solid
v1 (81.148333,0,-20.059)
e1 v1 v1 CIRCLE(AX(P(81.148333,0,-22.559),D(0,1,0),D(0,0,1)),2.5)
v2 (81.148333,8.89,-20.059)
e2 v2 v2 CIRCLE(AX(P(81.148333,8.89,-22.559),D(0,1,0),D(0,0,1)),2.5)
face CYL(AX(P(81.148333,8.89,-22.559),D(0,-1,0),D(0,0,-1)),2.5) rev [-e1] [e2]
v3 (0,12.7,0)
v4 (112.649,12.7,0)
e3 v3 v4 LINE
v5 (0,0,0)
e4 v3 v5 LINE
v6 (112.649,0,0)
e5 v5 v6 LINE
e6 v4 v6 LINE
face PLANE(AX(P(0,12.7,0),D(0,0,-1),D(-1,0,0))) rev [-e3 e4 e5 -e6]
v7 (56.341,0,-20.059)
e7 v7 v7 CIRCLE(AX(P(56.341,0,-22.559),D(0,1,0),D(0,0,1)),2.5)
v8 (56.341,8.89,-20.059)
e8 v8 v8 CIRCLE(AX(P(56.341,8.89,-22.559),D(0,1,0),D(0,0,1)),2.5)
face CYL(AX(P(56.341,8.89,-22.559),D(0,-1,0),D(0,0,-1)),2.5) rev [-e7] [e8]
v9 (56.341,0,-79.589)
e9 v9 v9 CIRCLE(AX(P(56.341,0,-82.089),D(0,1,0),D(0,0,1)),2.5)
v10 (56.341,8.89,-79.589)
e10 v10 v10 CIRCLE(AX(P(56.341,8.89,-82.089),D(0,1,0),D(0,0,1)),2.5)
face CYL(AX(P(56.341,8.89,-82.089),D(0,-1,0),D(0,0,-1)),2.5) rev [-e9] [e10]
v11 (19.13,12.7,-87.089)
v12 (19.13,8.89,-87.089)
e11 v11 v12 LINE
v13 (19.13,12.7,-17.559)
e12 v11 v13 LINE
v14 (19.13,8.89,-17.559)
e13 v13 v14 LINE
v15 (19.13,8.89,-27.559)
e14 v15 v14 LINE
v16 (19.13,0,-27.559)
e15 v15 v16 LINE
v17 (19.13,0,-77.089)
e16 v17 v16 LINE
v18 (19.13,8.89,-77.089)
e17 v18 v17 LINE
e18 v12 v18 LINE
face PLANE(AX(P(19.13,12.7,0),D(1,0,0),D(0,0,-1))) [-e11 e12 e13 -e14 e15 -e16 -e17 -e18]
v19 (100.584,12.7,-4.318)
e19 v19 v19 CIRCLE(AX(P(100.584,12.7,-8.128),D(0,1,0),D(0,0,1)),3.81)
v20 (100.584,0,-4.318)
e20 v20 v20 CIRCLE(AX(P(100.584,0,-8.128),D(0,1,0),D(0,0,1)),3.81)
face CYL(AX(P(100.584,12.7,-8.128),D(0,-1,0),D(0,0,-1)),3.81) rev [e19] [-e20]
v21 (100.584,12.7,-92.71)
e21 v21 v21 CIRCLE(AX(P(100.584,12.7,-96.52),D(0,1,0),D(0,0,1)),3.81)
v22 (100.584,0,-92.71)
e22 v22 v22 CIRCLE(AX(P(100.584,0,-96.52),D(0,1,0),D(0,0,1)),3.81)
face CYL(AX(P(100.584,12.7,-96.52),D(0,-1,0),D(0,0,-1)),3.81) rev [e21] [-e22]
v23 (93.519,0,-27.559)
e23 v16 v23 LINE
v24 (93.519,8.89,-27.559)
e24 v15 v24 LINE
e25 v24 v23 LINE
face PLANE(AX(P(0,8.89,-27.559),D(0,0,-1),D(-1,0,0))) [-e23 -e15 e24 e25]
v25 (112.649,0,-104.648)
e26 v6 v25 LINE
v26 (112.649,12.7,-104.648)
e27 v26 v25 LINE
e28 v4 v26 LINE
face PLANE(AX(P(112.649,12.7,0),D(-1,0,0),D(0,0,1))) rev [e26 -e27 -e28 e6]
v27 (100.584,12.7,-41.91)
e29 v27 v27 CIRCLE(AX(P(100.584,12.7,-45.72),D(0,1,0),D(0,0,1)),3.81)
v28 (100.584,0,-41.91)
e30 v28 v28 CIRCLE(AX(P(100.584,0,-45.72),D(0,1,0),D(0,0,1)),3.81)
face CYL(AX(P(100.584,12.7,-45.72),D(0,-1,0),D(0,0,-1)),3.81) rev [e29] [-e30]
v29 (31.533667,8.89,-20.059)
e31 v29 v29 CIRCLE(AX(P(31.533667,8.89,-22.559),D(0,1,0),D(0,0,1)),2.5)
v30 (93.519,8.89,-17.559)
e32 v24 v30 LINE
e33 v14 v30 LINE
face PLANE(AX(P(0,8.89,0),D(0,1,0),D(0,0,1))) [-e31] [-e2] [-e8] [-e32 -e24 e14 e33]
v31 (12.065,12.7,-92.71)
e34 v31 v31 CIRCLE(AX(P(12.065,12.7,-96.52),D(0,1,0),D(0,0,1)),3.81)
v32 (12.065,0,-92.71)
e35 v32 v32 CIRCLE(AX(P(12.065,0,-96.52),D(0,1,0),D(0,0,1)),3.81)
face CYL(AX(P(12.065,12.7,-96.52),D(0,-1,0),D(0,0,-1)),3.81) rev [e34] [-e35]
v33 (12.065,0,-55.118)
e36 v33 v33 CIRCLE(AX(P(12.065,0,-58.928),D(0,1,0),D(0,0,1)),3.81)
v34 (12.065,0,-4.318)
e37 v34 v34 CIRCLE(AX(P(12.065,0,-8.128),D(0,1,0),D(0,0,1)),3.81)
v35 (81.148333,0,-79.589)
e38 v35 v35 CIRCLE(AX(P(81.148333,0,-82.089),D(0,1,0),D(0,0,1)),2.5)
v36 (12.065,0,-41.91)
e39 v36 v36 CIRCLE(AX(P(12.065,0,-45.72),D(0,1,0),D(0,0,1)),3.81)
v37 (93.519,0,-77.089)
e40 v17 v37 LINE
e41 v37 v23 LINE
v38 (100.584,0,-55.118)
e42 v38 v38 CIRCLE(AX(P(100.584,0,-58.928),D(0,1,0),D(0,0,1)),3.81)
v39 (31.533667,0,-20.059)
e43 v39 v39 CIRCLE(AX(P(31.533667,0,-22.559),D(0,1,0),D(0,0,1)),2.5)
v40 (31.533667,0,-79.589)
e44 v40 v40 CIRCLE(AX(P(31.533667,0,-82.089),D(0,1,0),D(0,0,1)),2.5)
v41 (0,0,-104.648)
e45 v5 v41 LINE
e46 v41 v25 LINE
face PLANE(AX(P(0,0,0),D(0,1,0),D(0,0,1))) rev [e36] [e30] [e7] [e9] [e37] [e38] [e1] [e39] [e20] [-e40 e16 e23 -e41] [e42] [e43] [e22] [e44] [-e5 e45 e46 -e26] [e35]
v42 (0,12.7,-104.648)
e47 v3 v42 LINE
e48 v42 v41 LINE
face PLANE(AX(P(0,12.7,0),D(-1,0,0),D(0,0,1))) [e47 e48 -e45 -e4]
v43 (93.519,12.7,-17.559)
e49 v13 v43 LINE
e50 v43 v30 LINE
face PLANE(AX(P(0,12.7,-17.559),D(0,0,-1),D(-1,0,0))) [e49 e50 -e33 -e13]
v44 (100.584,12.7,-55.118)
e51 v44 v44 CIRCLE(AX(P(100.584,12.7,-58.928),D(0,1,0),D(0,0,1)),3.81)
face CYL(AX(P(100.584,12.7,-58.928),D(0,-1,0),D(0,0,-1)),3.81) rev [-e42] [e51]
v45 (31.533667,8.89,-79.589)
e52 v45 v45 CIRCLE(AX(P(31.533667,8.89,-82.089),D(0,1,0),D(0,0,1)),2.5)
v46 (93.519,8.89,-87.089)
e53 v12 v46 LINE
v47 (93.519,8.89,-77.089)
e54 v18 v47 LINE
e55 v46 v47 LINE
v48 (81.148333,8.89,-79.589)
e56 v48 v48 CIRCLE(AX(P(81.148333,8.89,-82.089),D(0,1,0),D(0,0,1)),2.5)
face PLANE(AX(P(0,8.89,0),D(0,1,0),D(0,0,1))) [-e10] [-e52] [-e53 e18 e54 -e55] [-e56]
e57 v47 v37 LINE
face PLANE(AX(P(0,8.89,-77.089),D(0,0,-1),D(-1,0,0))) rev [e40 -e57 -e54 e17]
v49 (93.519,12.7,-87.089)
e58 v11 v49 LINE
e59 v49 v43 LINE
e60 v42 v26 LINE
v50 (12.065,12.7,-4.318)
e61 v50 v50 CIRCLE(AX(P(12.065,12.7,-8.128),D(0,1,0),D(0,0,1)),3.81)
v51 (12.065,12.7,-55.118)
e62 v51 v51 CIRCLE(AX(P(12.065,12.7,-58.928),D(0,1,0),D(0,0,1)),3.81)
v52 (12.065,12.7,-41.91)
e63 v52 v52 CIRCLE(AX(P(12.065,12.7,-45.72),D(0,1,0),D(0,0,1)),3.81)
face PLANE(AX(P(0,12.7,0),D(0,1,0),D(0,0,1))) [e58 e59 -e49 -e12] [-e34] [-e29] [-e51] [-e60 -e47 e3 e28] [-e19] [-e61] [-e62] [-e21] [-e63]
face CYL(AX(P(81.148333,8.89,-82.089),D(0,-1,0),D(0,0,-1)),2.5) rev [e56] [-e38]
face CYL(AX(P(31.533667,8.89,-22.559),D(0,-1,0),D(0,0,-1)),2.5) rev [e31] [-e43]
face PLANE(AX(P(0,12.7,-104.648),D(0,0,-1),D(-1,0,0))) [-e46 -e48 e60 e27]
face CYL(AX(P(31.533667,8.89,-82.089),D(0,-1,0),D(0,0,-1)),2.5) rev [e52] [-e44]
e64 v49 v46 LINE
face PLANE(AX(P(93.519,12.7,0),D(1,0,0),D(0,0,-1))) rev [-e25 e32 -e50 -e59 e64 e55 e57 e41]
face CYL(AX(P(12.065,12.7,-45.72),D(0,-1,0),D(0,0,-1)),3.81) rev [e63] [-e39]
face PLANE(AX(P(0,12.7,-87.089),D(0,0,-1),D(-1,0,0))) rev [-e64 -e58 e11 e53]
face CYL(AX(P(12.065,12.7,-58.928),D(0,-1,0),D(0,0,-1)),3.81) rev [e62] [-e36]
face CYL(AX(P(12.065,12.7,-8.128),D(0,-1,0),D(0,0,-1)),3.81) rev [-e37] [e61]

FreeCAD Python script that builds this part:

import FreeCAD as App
import Part
import Sketcher

V = App.Vector
Q = App.Units.Quantity

doc = App.newDocument("Part")
body = doc.addObject("PartDesign::Body", "Body")

sketch1 = body.newObject("Sketcher::SketchObject", "Sketch")
sketch1.AttachmentSupport = (doc.getObject("XZ_Plane"), [""])
sketch1.MapMode = "FlatFace"
sketch1.addGeometry([
    Part.LineSegment(V(0, -104.648, 0), V(0, 0, 0)),
    Part.LineSegment(V(0, 0, 0), V(112.649, 0, 0)),
    Part.LineSegment(V(112.649, 0, 0), V(112.649, -104.648, 0)),
    Part.LineSegment(V(112.649, -104.648, 0), V(0, -104.648, 0)),
    Part.Circle(V(12.065, -8.128, 0), V(0, 0, 1), 3.81),
    Part.Circle(V(12.065, -45.72, 0), V(0, 0, 1), 3.81),
    Part.Circle(V(100.584, -8.128, 0), V(0, 0, 1), 3.81),
    Part.Circle(V(100.584, -45.72, 0), V(0, 0, 1), 3.81),
    Part.Circle(V(12.065, -58.928, 0), V(0, 0, 1), 3.81),
    Part.Circle(V(12.065, -96.52, 0), V(0, 0, 1), 3.81),
    Part.LineSegment(V(93.519, -17.559, 0), V(19.13, -17.559, 0)),
    Part.LineSegment(V(19.13, -17.559, 0), V(19.13, -87.089, 0)),
    Part.LineSegment(V(19.13, -87.089, 0), V(93.519, -87.089, 0)),
    Part.LineSegment(V(93.519, -87.089, 0), V(93.519, -17.559, 0)),
    Part.Circle(V(100.584, -58.928, 0), V(0, 0, 1), 3.81),
    Part.Circle(V(100.584, -96.52, 0), V(0, 0, 1), 3.81),
], False)
sketch1.addConstraint([
    Sketcher.Constraint("Coincident", 0, 2, 1, 1),
    Sketcher.Constraint("Coincident", 1, 2, 2, 1),
    Sketcher.Constraint("Coincident", 2, 2, 3, 1),
    Sketcher.Constraint("Coincident", 3, 2, 0, 1),
    Sketcher.Constraint("Coincident", 10, 2, 11, 1),
    Sketcher.Constraint("Coincident", 11, 2, 12, 1),
    Sketcher.Constraint("Coincident", 12, 2, 13, 1),
    Sketcher.Constraint("Coincident", 13, 2, 10, 1),
    Sketcher.Constraint("Vertical", 0),
    Sketcher.Constraint("Horizontal", 1),
    Sketcher.Constraint("Vertical", 2),
    Sketcher.Constraint("Horizontal", 3),
    Sketcher.Constraint("Horizontal", 10),
    Sketcher.Constraint("Vertical", 11),
    Sketcher.Constraint("Horizontal", 12),
    Sketcher.Constraint("Vertical", 13),
    Sketcher.Constraint("Coincident", 0, 2, -1, 1),
    Sketcher.Constraint("Equal", 4, 5),
    Sketcher.Constraint("Equal", 5, 6),
    Sketcher.Constraint("Equal", 6, 7),
    Sketcher.Constraint("Equal", 7, 8),
    Sketcher.Constraint("Equal", 8, 9),
    Sketcher.Constraint("Equal", 9, 14),
    Sketcher.Constraint("Equal", 14, 15),
    Sketcher.Constraint("Horizontal", 4, 3, 6, 3),
    Sketcher.Constraint("Horizontal", 5, 3, 7, 3),
    Sketcher.Constraint("Horizontal", 8, 3, 14, 3),
    Sketcher.Constraint("Horizontal", 9, 3, 15, 3),
    Sketcher.Constraint("Vertical", 4, 3, 5, 3),
    Sketcher.Constraint("Vertical", 6, 3, 7, 3),
    Sketcher.Constraint("Vertical", 5, 3, 8, 3),
    Sketcher.Constraint("Vertical", 8, 3, 9, 3),
    Sketcher.Constraint("Vertical", 7, 3, 14, 3),
    Sketcher.Constraint("Vertical", 14, 3, 15, 3),
    Sketcher.Constraint("Diameter", 4, Q("0.3 in")),
    Sketcher.Constraint("DistanceY", 8, 3, 4, 3, Q("2 in")),
    Sketcher.Constraint("DistanceY", 9, 3, 5, 3, Q("2 in")),
    Sketcher.Constraint("DistanceY", 0, 1, 0, 2, Q("4.12 in")),
    Sketcher.Constraint("DistanceY", 5, 3, -1, 1, Q("1.8 in")),
    Sketcher.Constraint("DistanceY", 2, 2, 14, 3, Q("1.8 in")),
    Sketcher.Constraint("DistanceX", 1, 1, 1, 2, Q("4.435 in")),
    Sketcher.Constraint("DistanceX", -1, 1, 6, 3, Q("3.96 in")),
    Sketcher.Constraint("DistanceX", 4, 3, 1, 2, Q("3.96 in")),
    Sketcher.Constraint("DistanceX", 10, 2, 10, 1, Q("74.389 mm")),
    Sketcher.Constraint("DistanceY", 11, 2, 11, 1, Q("69.53 mm")),
    Sketcher.Constraint("DistanceX", -1, 1, 10, 2, Q("19.13 mm")),
    Sketcher.Constraint("DistanceY", 10, 2, -1, 1, Q("17.559 mm")),
])
pad1 = body.newObject("PartDesign::Pad", "Pad")
pad1.Profile = sketch1
pad1.Length = Q("0.5 in")
pad1.Reversed = True

sketch2 = body.newObject("Sketcher::SketchObject", "Sketch001")
sketch2.AttachmentSupport = (doc.getObject("XZ_Plane"), [""])
sketch2.MapMode = "FlatFace"
sketch2.addGeometry([
    Part.LineSegment(V(19.13, -87.089, 0), V(19.13, -77.089, 0)),
    Part.LineSegment(V(19.13, -77.089, 0), V(93.519, -77.089, 0)),
    Part.LineSegment(V(93.519, -77.089, 0), V(93.519, -87.089, 0)),
    Part.LineSegment(V(93.519, -87.089, 0), V(19.13, -87.089, 0)),
    Part.Circle(V(31.533667, -82.089, 0), V(0, 0, 1), 2.5),
    Part.Circle(V(56.341, -82.089, 0), V(0, 0, 1), 2.5),
    Part.Circle(V(81.148333, -82.089, 0), V(0, 0, 1), 2.5),
    Part.LineSegment(V(19.13, -27.559, 0), V(19.13, -17.559, 0)),
    Part.LineSegment(V(19.13, -17.559, 0), V(93.519, -17.559, 0)),
    Part.LineSegment(V(93.519, -17.559, 0), V(93.519, -27.559, 0)),
    Part.LineSegment(V(93.519, -27.559, 0), V(19.13, -27.559, 0)),
    Part.Circle(V(31.533667, -22.559, 0), V(0, 0, 1), 2.5),
    Part.Circle(V(56.341, -22.559, 0), V(0, 0, 1), 2.5),
    Part.Circle(V(81.148333, -22.559, 0), V(0, 0, 1), 2.5),
], False)
sketch2.addConstraint([
    Sketcher.Constraint("Coincident", 0, 2, 1, 1),
    Sketcher.Constraint("Coincident", 1, 2, 2, 1),
    Sketcher.Constraint("Coincident", 2, 2, 3, 1),
    Sketcher.Constraint("Coincident", 3, 2, 0, 1),
    Sketcher.Constraint("Coincident", 7, 2, 8, 1),
    Sketcher.Constraint("Coincident", 8, 2, 9, 1),
    Sketcher.Constraint("Coincident", 9, 2, 10, 1),
    Sketcher.Constraint("Coincident", 10, 2, 7, 1),
    Sketcher.Constraint("Vertical", 0),
    Sketcher.Constraint("Horizontal", 1),
    Sketcher.Constraint("Vertical", 2),
    Sketcher.Constraint("Horizontal", 3),
    Sketcher.Constraint("Vertical", 7),
    Sketcher.Constraint("Horizontal", 8),
    Sketcher.Constraint("Vertical", 9),
    Sketcher.Constraint("Horizontal", 10),
    Sketcher.Constraint("Equal", 4, 5),
    Sketcher.Constraint("Equal", 5, 6),
    Sketcher.Constraint("Equal", 6, 11),
    Sketcher.Constraint("Equal", 11, 12),
    Sketcher.Constraint("Equal", 12, 13),
    Sketcher.Constraint("Horizontal", 4, 3, 5, 3),
    Sketcher.Constraint("Horizontal", 5, 3, 6, 3),
    Sketcher.Constraint("Horizontal", 11, 3, 12, 3),
    Sketcher.Constraint("Horizontal", 12, 3, 13, 3),
    Sketcher.Constraint("Vertical", 4, 3, 11, 3),
    Sketcher.Constraint("Vertical", 5, 3, 12, 3),
    Sketcher.Constraint("Vertical", 6, 3, 13, 3),
    Sketcher.Constraint("Vertical", 3, 2, 7, 2),
    Sketcher.Constraint("Vertical", 2, 2, 8, 2),
    Sketcher.Constraint("Equal", 2, 7),
    Sketcher.Constraint("Diameter", 4, Q("5 mm")),
    Sketcher.Constraint("DistanceY", 1, 2, 9, 2, Q("1.95 in")),
    Sketcher.Constraint("DistanceY", 0, 2, -1, 1, Q("3.035 in")),
    Sketcher.Constraint("DistanceX", 0, 2, 5, 3, Q("1.465 in")),
    Sketcher.Constraint("DistanceX", 1, 1, 1, 2, Q("74.389 mm")),
    Sketcher.Constraint("DistanceY", 0, 1, 0, 2, Q("10 mm")),
    Sketcher.Constraint("DistanceY", 4, 3, -1, 1, Q("82.089 mm")),
    Sketcher.Constraint("DistanceX", -1, 1, 5, 3, Q("56.341 mm")),
    Sketcher.Constraint("DistanceY", 11, 3, -1, 1, Q("22.559 mm")),
    Sketcher.Constraint("DistanceX", -1, 1, 4, 3, Q("31.533667 mm")),
    Sketcher.Constraint("DistanceX", -1, 1, 6, 3, Q("81.148333 mm")),
])
pad2 = body.newObject("PartDesign::Pad", "Pad001")
pad2.Profile = sketch2
pad2.Length = Q("0.35 in")
pad2.Reversed = True

doc.recompute()
